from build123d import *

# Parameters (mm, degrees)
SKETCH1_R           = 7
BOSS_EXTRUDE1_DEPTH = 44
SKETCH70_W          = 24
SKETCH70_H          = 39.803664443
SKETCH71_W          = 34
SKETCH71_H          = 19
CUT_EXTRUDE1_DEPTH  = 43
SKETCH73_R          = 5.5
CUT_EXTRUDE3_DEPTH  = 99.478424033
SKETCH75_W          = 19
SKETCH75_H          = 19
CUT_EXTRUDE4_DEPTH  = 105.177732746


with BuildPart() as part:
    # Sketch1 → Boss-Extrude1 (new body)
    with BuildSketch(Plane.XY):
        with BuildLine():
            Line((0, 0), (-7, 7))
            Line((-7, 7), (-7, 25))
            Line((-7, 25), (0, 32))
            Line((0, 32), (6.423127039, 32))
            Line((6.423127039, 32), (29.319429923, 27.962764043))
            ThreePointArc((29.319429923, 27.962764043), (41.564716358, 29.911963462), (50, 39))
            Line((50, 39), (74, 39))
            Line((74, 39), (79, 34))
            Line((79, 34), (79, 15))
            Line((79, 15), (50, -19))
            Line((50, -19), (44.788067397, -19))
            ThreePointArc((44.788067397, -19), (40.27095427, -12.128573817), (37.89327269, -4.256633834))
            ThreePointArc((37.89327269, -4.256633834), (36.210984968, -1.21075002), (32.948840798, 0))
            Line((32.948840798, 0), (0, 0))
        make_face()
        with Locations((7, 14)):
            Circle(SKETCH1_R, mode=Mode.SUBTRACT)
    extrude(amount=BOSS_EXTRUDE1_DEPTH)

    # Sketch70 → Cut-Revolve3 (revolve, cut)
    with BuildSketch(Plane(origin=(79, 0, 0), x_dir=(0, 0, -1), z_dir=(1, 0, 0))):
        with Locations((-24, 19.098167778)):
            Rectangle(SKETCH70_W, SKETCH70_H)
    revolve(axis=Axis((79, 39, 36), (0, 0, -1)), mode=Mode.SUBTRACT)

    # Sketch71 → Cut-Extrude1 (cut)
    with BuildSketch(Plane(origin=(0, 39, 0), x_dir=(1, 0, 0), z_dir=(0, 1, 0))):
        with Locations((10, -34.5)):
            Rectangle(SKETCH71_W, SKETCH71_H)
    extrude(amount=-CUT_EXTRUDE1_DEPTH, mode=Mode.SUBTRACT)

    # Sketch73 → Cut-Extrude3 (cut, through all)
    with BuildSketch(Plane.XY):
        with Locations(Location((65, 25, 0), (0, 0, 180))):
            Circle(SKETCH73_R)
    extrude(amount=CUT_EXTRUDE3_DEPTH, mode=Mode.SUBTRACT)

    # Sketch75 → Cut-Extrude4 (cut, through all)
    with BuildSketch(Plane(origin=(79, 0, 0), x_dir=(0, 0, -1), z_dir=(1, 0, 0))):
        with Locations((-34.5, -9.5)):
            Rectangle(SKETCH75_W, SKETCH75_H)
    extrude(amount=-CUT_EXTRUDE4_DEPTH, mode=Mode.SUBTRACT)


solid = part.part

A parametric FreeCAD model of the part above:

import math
import FreeCAD as App
import Part
import Sketcher

V = App.Vector
Q = App.Units.Quantity

doc = App.newDocument("Part")
body = doc.addObject("PartDesign::Body", "Body")

sketch1 = doc.addObject("Sketcher::SketchObject", "Sketch")
body.addObject(sketch1)
sketch1.AttachmentSupport = (doc.XY_Plane, [""])
sketch1.MapMode = "FlatFace"
sketch1.addGeometry(Part.LineSegment(V(-7, 7, 0), V(0, 0, 0)), False)
sketch1.addGeometry(Part.LineSegment(V(0, 0, 0), V(32.9, 0, 0)), False)
sketch1.addGeometry(Part.ArcOfCircle(Part.Circle(V(32.9, -5, 0), V(0, 0, 1), 5), math.radians(9), math.radians(90)), False)
sketch1.addGeometry(Part.ArcOfCircle(Part.Circle(V(66.2, 0, 0), V(0, 0, 1), 28.6), math.radians(-171), math.radians(-138)), False)
sketch1.addGeometry(Part.LineSegment(V(44.8, -19, 0), V(50, -19, 0)), False)
sketch1.addGeometry(Part.LineSegment(V(50, -19, 0), V(79, 15, 0)), False)
sketch1.addGeometry(Part.LineSegment(V(79, 15, 0), V(79, 34, 0)), False)
sketch1.addGeometry(Part.LineSegment(V(79, 34, 0), V(74, 39, 0)), False)
sketch1.addGeometry(Part.LineSegment(V(74, 39, 0), V(50, 39, 0)), False)
sketch1.addGeometry(Part.ArcOfCircle(Part.Circle(V(32.6, 46.7, 0), V(0, 0, 1), 19), math.radians(-100), math.radians(-24)), False)
sketch1.addGeometry(Part.LineSegment(V(29.3, 28, 0), V(6.4, 32, 0)), False)
sketch1.addGeometry(Part.LineSegment(V(6.4, 32, 0), V(0, 32, 0)), False)
sketch1.addGeometry(Part.LineSegment(V(0, 32, 0), V(-7, 25, 0)), False)
sketch1.addGeometry(Part.LineSegment(V(-7, 25, 0), V(-7, 7, 0)), False)
sketch1.addGeometry(Part.Circle(V(7, 14, 0), V(0, 0, 1), 7), False)
sketch1.addConstraint(Sketcher.Constraint("Coincident", 0, 2, 1, 1))
sketch1.addConstraint(Sketcher.Constraint("Tangent", 1, 2, 2, 2))
sketch1.addConstraint(Sketcher.Constraint("Tangent", 2, 1, 3, 1))
sketch1.addConstraint(Sketcher.Constraint("Coincident", 3, 2, 4, 1))
sketch1.addConstraint(Sketcher.Constraint("Coincident", 4, 2, 5, 1))
sketch1.addConstraint(Sketcher.Constraint("Coincident", 5, 2, 6, 1))
sketch1.addConstraint(Sketcher.Constraint("Coincident", 6, 2, 7, 1))
sketch1.addConstraint(Sketcher.Constraint("Coincident", 7, 2, 8, 1))
sketch1.addConstraint(Sketcher.Constraint("Coincident", 8, 2, 9, 2))
sketch1.addConstraint(Sketcher.Constraint("Tangent", 9, 1, 10, 1))
sketch1.addConstraint(Sketcher.Constraint("Coincident", 10, 2, 11, 1))
sketch1.addConstraint(Sketcher.Constraint("Coincident", 11, 2, 12, 1))
sketch1.addConstraint(Sketcher.Constraint("Coincident", 12, 2, 13, 1))
sketch1.addConstraint(Sketcher.Constraint("Coincident", 13, 2, 0, 1))
sketch1.addConstraint(Sketcher.Constraint("Horizontal", 1))
sketch1.addConstraint(Sketcher.Constraint("Horizontal", 4))
sketch1.addConstraint(Sketcher.Constraint("Vertical", 6))
sketch1.addConstraint(Sketcher.Constraint("Horizontal", 8))
sketch1.addConstraint(Sketcher.Constraint("Horizontal", 11))
sketch1.addConstraint(Sketcher.Constraint("Vertical", 13))
sketch1.addConstraint(Sketcher.Constraint("Coincident", 0, 2, -1, 1))
sketch1.addConstraint(Sketcher.Constraint("PointOnObject", 3, 3, -1))
sketch1.addConstraint(Sketcher.Constraint("PointOnObject", 11, 2, -2))
sketch1.addConstraint(Sketcher.Constraint("Parallel", 0, 7))
sketch1.addConstraint(Sketcher.Constraint("Perpendicular", 7, 12))
sketch1.addConstraint(Sketcher.Constraint("Vertical", 4, 2, 8, 2))
sketch1.addConstraint(Sketcher.Constraint("Equal", 0, 12))
sketch1.addConstraint(Sketcher.Constraint("Diameter", 14, Q("14 mm")))
sketch1.addConstraint(Sketcher.Constraint("Radius", 2, Q("5 mm")))
sketch1.addConstraint(Sketcher.Constraint("Radius", 9, Q("19 mm")))
sketch1.addConstraint(Sketcher.Constraint("DistanceX", 8, 2, 8, 1, Q("24 mm")))
sketch1.addConstraint(Sketcher.Constraint("DistanceY", 6, 1, 6, 2, Q("19 mm")))
sketch1.addConstraint(Sketcher.Constraint("DistanceY", 13, 2, 13, 1, Q("18 mm")))
sketch1.addConstraint(Sketcher.Constraint("Angle", 10, Q("170 deg")))
sketch1.addConstraint(Sketcher.Constraint("DistanceX", -1, 1, 14, 3, Q("7 mm")))
sketch1.addConstraint(Sketcher.Constraint("DistanceY", -1, 1, 14, 3, Q("14 mm")))
sketch1.addConstraint(Sketcher.Constraint("DistanceY", 3, 2, -1, 1, Q("19 mm")))
sketch1.addConstraint(Sketcher.Constraint("DistanceX", -1, 1, 4, 2, Q("50 mm")))
sketch1.addConstraint(Sketcher.Constraint("DistanceX", -1, 1, 5, 2, Q("79 mm")))
sketch1.addConstraint(Sketcher.Constraint("DistanceY", -1, 1, 5, 2, Q("15 mm")))
sketch1.addConstraint(Sketcher.Constraint("DistanceY", -1, 1, 10, 2, Q("32 mm")))
sketch1.addConstraint(Sketcher.Constraint("Radius", 3, Q("28.630802 mm")))
sketch1.addConstraint(Sketcher.Constraint("DistanceX", 1, 1, 1, 2, Q("32.948841 mm")))
sketch1.addConstraint(Sketcher.Constraint("DistanceX", 11, 2, 11, 1, Q("6.423127 mm")))
pad1 = doc.addObject("PartDesign::Pad", "Pad")
body.addObject(pad1)
pad1.Profile = sketch1
pad1.Length = 44

sketch2 = doc.addObject("Sketcher::SketchObject", "Sketch001")
body.addObject(sketch2)
sketch2.AttachmentSupport = (doc.YZ_Plane, [""])
sketch2.MapMode = "FlatFace"
sketch2.AttachmentOffset = App.Placement(V(0, 0, 79), App.Rotation())
sketch2.addGeometry(Part.LineSegment(V(39, 36, 0), V(-1, 36, 0)), False)
sketch2.addGeometry(Part.LineSegment(V(-1, 36, 0), V(-1, 12, 0)), False)
sketch2.addGeometry(Part.LineSegment(V(-1, 12, 0), V(39, 12, 0)), False)
sketch2.addGeometry(Part.LineSegment(V(39, 12, 0), V(39, 36, 0)), False)
sketch2.addGeometry(Part.LineSegment(V(39, 36, 0), V(39, 12, 0)), True)
sketch2.addConstraint(Sketcher.Constraint("Coincident", 0, 2, 1, 1))
sketch2.addConstraint(Sketcher.Constraint("Coincident", 1, 2, 2, 1))
sketch2.addConstraint(Sketcher.Constraint("Coincident", 2, 2, 3, 1))
sketch2.addConstraint(Sketcher.Constraint("Coincident", 3, 2, 0, 1))
sketch2.addConstraint(Sketcher.Constraint("Horizontal", 0))
sketch2.addConstraint(Sketcher.Constraint("Vertical", 1))
sketch2.addConstraint(Sketcher.Constraint("Horizontal", 2))
sketch2.addConstraint(Sketcher.Constraint("Vertical", 3))
sketch2.addConstraint(Sketcher.Constraint("Vertical", 4))
sketch2.addConstraint(Sketcher.Constraint("Coincident", 4, 1, 3, 2))
sketch2.addConstraint(Sketcher.Constraint("Horizontal", 1, 2, 4, 2))
sketch2.addConstraint(Sketcher.Constraint("DistanceY", 1, 2, 1, 1, Q("24 mm")))
sketch2.addConstraint(Sketcher.Constraint("DistanceY", -1, 1, 0, 2, Q("36 mm")))
sketch2.addConstraint(Sketcher.Constraint("DistanceX", -1, 1, 2, 2, Q("39 mm")))
sketch2.addConstraint(Sketcher.Constraint("DistanceX", 0, 2, 0, 1, Q("39.803664 mm")))
groove = doc.addObject("PartDesign::Groove", "Groove")
body.addObject(groove)
groove.Profile = sketch2
groove.ReferenceAxis = (sketch2, ["Axis0"])
groove.Angle = 360

sketch3 = doc.addObject("Sketcher::SketchObject", "Sketch002")
body.addObject(sketch3)
sketch3.AttachmentSupport = (doc.XZ_Plane, [""])
sketch3.MapMode = "FlatFace"
sketch3.AttachmentOffset = App.Placement(V(0, 0, -39), App.Rotation())
sketch3.addGeometry(Part.LineSegment(V(-7, 25, 0), V(-7, 44, 0)), False)
sketch3.addGeometry(Part.LineSegment(V(-7, 44, 0), V(27, 44, 0)), False)
sketch3.addGeometry(Part.LineSegment(V(27, 44, 0), V(27, 25, 0)), False)
sketch3.addGeometry(Part.LineSegment(V(27, 25, 0), V(-7, 25, 0)), False)
sketch3.addConstraint(Sketcher.Constraint("Coincident", 0, 2, 1, 1))
sketch3.addConstraint(Sketcher.Constraint("Coincident", 1, 2, 2, 1))
sketch3.addConstraint(Sketcher.Constraint("Coincident", 2, 2, 3, 1))
sketch3.addConstraint(Sketcher.Constraint("Coincident", 3, 2, 0, 1))
sketch3.addConstraint(Sketcher.Constraint("Vertical", 0))
sketch3.addConstraint(Sketcher.Constraint("Horizontal", 1))
sketch3.addConstraint(Sketcher.Constraint("Vertical", 2))
sketch3.addConstraint(Sketcher.Constraint("Horizontal", 3))
sketch3.addConstraint(Sketcher.Constraint("DistanceX", 1, 1, 1, 2, Q("34 mm")))
sketch3.addConstraint(Sketcher.Constraint("DistanceY", 0, 1, 0, 2, Q("19 mm")))
sketch3.addConstraint(Sketcher.Constraint("DistanceX", 0, 2, -1, 1, Q("7 mm")))
sketch3.addConstraint(Sketcher.Constraint("DistanceY", -1, 1, 0, 2, Q("44 mm")))
pocket1 = doc.addObject("PartDesign::Pocket", "Pocket")
body.addObject(pocket1)
pocket1.Profile = sketch3
pocket1.Length = 43
pocket1.Reversed = True

sketch4 = doc.addObject("Sketcher::SketchObject", "Sketch003")
body.addObject(sketch4)
sketch4.AttachmentSupport = (doc.XY_Plane, [""])
sketch4.MapMode = "FlatFace"
sketch4.addGeometry(Part.Circle(V(65, 25, 0), V(0, 0, 1), 6), False)
sketch4.addConstraint(Sketcher.Constraint("Diameter", 0, Q("11 mm")))
sketch4.addConstraint(Sketcher.Constraint("DistanceX", -1, 1, 0, 3, Q("65 mm")))
sketch4.addConstraint(Sketcher.Constraint("DistanceY", -1, 1, 0, 3, Q("25 mm")))
pocket2 = doc.addObject("PartDesign::Pocket", "Pocket001")
body.addObject(pocket2)
pocket2.Profile = sketch4
pocket2.Type = "ThroughAll"
pocket2.Reversed = True

sketch5 = doc.addObject("Sketcher::SketchObject", "Sketch004")
body.addObject(sketch5)
sketch5.AttachmentSupport = (doc.YZ_Plane, [""])
sketch5.MapMode = "FlatFace"
sketch5.AttachmentOffset = App.Placement(V(0, 0, 79), App.Rotation())
sketch5.addGeometry(Part.LineSegment(V(0, 44, 0), V(-19, 44, 0)), False)
sketch5.addGeometry(Part.LineSegment(V(-19, 44, 0), V(-19, 25, 0)), False)
sketch5.addGeometry(Part.LineSegment(V(-19, 25, 0), V(0, 25, 0)), False)
sketch5.addGeometry(Part.LineSegment(V(0, 25, 0), V(0, 44, 0)), False)
sketch5.addConstraint(Sketcher.Constraint("Coincident", 0, 2, 1, 1))
sketch5.addConstraint(Sketcher.Constraint("Coincident", 1, 2, 2, 1))
sketch5.addConstraint(Sketcher.Constraint("Coincident", 2, 2, 3, 1))
sketch5.addConstraint(Sketcher.Constraint("Coincident", 3, 2, 0, 1))
sketch5.addConstraint(Sketcher.Constraint("Horizontal", 0))
sketch5.addConstraint(Sketcher.Constraint("Vertical", 1))
sketch5.addConstraint(Sketcher.Constraint("Horizontal", 2))
sketch5.addConstraint(Sketcher.Constraint("Vertical", 3))
sketch5.addConstraint(Sketcher.Constraint("PointOnObject", 2, 2, -2))
sketch5.addConstraint(Sketcher.Constraint("Equal", 2, 1))
sketch5.addConstraint(Sketcher.Constraint("DistanceX", 0, 2, 0, 1, Q("19 mm")))
sketch5.addConstraint(Sketcher.Constraint("DistanceY", -1, 1, 0, 2, Q("44 mm")))
pocket3 = doc.addObject("PartDesign::Pocket", "Pocket002")
body.addObject(pocket3)
pocket3.Profile = sketch5
pocket3.Type = "ThroughAll"

doc.recompute()
